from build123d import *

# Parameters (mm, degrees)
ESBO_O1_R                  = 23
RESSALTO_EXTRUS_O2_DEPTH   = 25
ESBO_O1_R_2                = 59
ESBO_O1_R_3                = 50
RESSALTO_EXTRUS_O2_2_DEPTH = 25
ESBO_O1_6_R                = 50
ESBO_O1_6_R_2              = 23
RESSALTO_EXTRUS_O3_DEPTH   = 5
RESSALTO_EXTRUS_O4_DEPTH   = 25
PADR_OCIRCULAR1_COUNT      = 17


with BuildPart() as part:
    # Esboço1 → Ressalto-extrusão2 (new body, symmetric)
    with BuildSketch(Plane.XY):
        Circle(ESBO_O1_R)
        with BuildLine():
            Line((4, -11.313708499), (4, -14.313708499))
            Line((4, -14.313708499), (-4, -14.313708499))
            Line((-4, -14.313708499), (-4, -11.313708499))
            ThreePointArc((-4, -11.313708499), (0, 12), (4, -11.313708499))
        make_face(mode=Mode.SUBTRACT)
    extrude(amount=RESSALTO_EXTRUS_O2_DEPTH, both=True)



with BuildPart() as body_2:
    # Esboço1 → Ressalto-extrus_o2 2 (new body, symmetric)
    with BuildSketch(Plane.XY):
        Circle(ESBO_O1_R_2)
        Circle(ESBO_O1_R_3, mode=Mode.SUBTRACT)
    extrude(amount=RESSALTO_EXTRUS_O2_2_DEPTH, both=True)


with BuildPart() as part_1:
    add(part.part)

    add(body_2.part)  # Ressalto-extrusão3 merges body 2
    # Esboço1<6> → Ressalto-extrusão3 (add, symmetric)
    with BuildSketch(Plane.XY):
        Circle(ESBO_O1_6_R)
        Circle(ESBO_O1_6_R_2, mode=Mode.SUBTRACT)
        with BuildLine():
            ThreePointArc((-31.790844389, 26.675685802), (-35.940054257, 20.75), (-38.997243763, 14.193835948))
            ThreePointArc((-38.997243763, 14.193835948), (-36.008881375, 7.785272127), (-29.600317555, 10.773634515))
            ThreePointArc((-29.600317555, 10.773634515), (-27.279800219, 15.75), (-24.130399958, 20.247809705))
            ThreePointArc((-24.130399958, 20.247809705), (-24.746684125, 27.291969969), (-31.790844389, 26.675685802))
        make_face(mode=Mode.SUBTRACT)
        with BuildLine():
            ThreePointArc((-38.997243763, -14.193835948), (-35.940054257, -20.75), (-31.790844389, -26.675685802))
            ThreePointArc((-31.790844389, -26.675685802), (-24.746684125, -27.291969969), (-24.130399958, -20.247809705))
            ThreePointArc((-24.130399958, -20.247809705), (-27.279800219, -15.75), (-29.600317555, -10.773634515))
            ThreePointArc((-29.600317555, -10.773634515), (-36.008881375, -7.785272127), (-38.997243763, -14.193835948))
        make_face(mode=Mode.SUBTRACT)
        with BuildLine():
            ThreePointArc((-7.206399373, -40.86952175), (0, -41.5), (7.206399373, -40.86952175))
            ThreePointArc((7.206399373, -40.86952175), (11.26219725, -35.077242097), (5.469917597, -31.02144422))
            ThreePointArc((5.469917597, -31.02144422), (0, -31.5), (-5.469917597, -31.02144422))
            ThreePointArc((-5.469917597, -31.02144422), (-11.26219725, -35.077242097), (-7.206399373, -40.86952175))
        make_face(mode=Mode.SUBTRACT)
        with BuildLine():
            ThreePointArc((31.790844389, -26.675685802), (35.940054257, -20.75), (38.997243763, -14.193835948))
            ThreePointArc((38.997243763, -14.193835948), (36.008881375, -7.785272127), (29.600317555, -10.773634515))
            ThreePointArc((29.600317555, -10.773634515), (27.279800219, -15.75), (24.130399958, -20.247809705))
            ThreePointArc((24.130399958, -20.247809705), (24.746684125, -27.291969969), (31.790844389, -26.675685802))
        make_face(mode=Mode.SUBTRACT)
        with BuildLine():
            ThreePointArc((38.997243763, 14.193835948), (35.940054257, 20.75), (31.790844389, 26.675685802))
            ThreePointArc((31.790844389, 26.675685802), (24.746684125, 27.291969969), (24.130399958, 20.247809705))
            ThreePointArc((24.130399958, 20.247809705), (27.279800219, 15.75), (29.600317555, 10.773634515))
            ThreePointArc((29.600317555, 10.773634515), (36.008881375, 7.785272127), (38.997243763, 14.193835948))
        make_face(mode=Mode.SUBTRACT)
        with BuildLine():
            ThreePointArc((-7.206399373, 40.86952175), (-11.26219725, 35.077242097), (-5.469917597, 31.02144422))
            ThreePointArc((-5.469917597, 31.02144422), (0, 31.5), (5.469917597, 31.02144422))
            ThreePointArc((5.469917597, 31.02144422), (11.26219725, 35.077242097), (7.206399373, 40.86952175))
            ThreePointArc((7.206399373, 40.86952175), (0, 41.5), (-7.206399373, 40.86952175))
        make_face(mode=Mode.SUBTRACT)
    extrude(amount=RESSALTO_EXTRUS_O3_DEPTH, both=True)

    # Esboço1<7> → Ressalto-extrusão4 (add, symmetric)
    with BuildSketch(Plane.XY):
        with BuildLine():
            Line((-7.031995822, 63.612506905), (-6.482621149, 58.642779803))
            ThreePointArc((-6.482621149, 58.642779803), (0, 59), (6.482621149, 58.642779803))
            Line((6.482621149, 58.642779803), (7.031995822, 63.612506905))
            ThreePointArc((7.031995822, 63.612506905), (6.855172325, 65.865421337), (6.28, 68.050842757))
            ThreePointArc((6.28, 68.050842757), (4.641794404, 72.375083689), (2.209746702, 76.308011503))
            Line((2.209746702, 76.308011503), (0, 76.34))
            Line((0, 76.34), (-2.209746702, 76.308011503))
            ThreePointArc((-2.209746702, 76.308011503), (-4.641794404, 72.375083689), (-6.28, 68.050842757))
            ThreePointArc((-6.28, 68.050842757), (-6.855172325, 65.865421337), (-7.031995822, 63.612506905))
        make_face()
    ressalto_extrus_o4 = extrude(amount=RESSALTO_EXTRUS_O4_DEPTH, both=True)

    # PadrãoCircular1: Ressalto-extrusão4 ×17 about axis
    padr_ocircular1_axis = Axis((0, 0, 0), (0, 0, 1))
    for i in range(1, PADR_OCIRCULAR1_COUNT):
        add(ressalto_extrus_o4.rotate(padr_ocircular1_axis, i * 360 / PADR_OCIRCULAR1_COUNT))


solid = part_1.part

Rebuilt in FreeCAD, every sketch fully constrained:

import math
import FreeCAD as App
import Part
import Sketcher
from FreeCAD import Vector

doc = App.newDocument("Part")
body = doc.addObject("PartDesign::Body", "Body")

# Sketch on XY plane
sketch1 = body.newObject("Sketcher::SketchObject", "Sketch")
sketch1.AttachmentSupport = (doc.getObject("XY_Plane"), [""])
sketch1.MapMode = "FlatFace"
sketch1.addGeometry(Part.Circle(Vector(0, 0, 0), Vector(0, 0, 1), 23), False)
sketch1.addGeometry(Part.ArcOfCircle(Part.Circle(Vector(0, 0, 0), Vector(0, 0, 1), 12), math.radians(-71), math.radians(251)), False)
sketch1.addGeometry(Part.LineSegment(Vector(4, -11.3, 0), Vector(4, -14.3, 0)), False)
sketch1.addGeometry(Part.LineSegment(Vector(4, -14.3, 0), Vector(-4, -14.3, 0)), False)
sketch1.addGeometry(Part.LineSegment(Vector(-4, -14.3, 0), Vector(-4, -11.3, 0)), False)
sketch1.addConstraint(Sketcher.Constraint("Coincident", 1, 1, 2, 1))
sketch1.addConstraint(Sketcher.Constraint("Coincident", 2, 2, 3, 1))
sketch1.addConstraint(Sketcher.Constraint("Coincident", 3, 2, 4, 1))
sketch1.addConstraint(Sketcher.Constraint("Coincident", 4, 2, 1, 2))
sketch1.addConstraint(Sketcher.Constraint("Vertical", 2))
sketch1.addConstraint(Sketcher.Constraint("Horizontal", 3))
sketch1.addConstraint(Sketcher.Constraint("Vertical", 4))
sketch1.addConstraint(Sketcher.Constraint("Coincident", 0, 3, -1, 1))
sketch1.addConstraint(Sketcher.Constraint("Coincident", 1, 3, -1, 1))
sketch1.addConstraint(Sketcher.Constraint("Horizontal", 1, 1, 4, 2))
sketch1.addConstraint(Sketcher.Constraint("Diameter", 0, 46.0))
sketch1.addConstraint(Sketcher.Constraint("Radius", 1, 12.0))
sketch1.addConstraint(Sketcher.Constraint("DistanceX", 3, 2, 3, 1, 8.0))
sketch1.addConstraint(Sketcher.Constraint("DistanceY", 2, 2, 2, 1, 3.0))
pad1 = body.newObject("PartDesign::Pad", "Pad")
pad1.Profile = sketch1
pad1.Length = 50
pad1.Midplane = True
body2 = doc.addObject("PartDesign::Body", "Body001")

# Sketch on XY plane
sketch2 = body2.newObject("Sketcher::SketchObject", "Sketch001")
sketch2.AttachmentSupport = (doc.getObject("XY_Plane001"), [""])
sketch2.MapMode = "FlatFace"
sketch2.addGeometry(Part.Circle(Vector(0, 0, 0), Vector(0, 0, 1), 59), False)
sketch2.addGeometry(Part.Circle(Vector(0, 0, 0), Vector(0, 0, 1), 50), False)
sketch2.addConstraint(Sketcher.Constraint("Coincident", 0, 3, -1, 1))
sketch2.addConstraint(Sketcher.Constraint("Coincident", 1, 3, -1, 1))
sketch2.addConstraint(Sketcher.Constraint("Diameter", 0, 118.0))
sketch2.addConstraint(Sketcher.Constraint("Diameter", 1, 100.0))
pad2 = body2.newObject("PartDesign::Pad", "Pad001")
pad2.Profile = sketch2
pad2.Length = 50
pad2.Midplane = True
body.AllowCompound = True
doc.recompute()

boolean = body.newObject("PartDesign::Boolean", "Boolean")
boolean.Type = "Fuse"
boolean.addObjects([body2])

# Sketch on XY plane
sketch3 = body.newObject("Sketcher::SketchObject", "Sketch002")
sketch3.AttachmentSupport = (doc.getObject("XY_Plane"), [""])
sketch3.MapMode = "FlatFace"
sketch3.addGeometry(Part.Circle(Vector(0, 0, 0), Vector(0, 0, 1), 50), False)
sketch3.addGeometry(Part.ArcOfCircle(Part.Circle(Vector(0, 0, 0), Vector(0, 0, 1), 42), math.radians(-160), math.radians(-140)), False)
sketch3.addGeometry(Part.ArcOfCircle(Part.Circle(Vector(-34, -12, 0), Vector(0, 0, 1), 5), math.radians(20), math.radians(200)), False)
sketch3.addGeometry(Part.ArcOfCircle(Part.Circle(Vector(0, 0, 0), Vector(0, 0, 1), 32), math.radians(-160), math.radians(-140)), False)
sketch3.addGeometry(Part.ArcOfCircle(Part.Circle(Vector(-28, -23, 0), Vector(0, 0, 1), 5), math.radians(-140), math.radians(40)), False)
sketch3.addGeometry(Part.ArcOfCircle(Part.Circle(Vector(0, 0, 0), Vector(0, 0, 1), 41), math.radians(-100), math.radians(-80)), False)
sketch3.addGeometry(Part.ArcOfCircle(Part.Circle(Vector(-6, -36, 0), Vector(0, 0, 1), 5), math.radians(80), math.radians(260)), False)
sketch3.addGeometry(Part.ArcOfCircle(Part.Circle(Vector(0, 0, 0), Vector(0, 0, 1), 32), math.radians(-100), math.radians(-80)), False)
sketch3.addGeometry(Part.ArcOfCircle(Part.Circle(Vector(6, -36, 0), Vector(0, 0, 1), 5), math.radians(-80), math.radians(100)), False)
sketch3.addGeometry(Part.Circle(Vector(0, 0, 0), Vector(0, 0, 1), 23), False)
sketch3.addGeometry(Part.ArcOfCircle(Part.Circle(Vector(0, 0, 0), Vector(0, 0, 1), 42), math.radians(-40), math.radians(-20)), False)
sketch3.addGeometry(Part.ArcOfCircle(Part.Circle(Vector(28, -23, 0), Vector(0, 0, 1), 5), math.radians(140), math.radians(320)), False)
sketch3.addGeometry(Part.ArcOfCircle(Part.Circle(Vector(0, 0, 0), Vector(0, 0, 1), 32), math.radians(-40), math.radians(-20)), False)
sketch3.addGeometry(Part.ArcOfCircle(Part.Circle(Vector(34, -12, 0), Vector(0, 0, 1), 5), math.radians(-20), math.radians(160)), False)
sketch3.addGeometry(Part.ArcOfCircle(Part.Circle(Vector(0, 0, 0), Vector(0, 0, 1), 42), math.radians(140), math.radians(160)), False)
sketch3.addGeometry(Part.ArcOfCircle(Part.Circle(Vector(-28, 23, 0), Vector(0, 0, 1), 5), math.radians(-40), math.radians(140)), False)
sketch3.addGeometry(Part.ArcOfCircle(Part.Circle(Vector(0, 0, 0), Vector(0, 0, 1), 32), math.radians(140), math.radians(160)), False)
sketch3.addGeometry(Part.ArcOfCircle(Part.Circle(Vector(-34, 12, 0), Vector(0, 0, 1), 5), math.radians(160), math.radians(340)), False)
sketch3.addGeometry(Part.ArcOfCircle(Part.Circle(Vector(0, 0, 0), Vector(0, 0, 1), 42), math.radians(20), math.radians(40)), False)
sketch3.addGeometry(Part.ArcOfCircle(Part.Circle(Vector(34, 12, 0), Vector(0, 0, 1), 5), math.radians(-160), math.radians(20)), False)
sketch3.addGeometry(Part.ArcOfCircle(Part.Circle(Vector(0, 0, 0), Vector(0, 0, 1), 32), math.radians(20), math.radians(40)), False)
sketch3.addGeometry(Part.ArcOfCircle(Part.Circle(Vector(28, 23, 0), Vector(0, 0, 1), 5), math.radians(40), math.radians(220)), False)
sketch3.addGeometry(Part.ArcOfCircle(Part.Circle(Vector(-6, 36, 0), Vector(0, 0, 1), 5), math.radians(100), math.radians(280)), False)
sketch3.addGeometry(Part.ArcOfCircle(Part.Circle(Vector(0, 0, 0), Vector(0, 0, 1), 41), math.radians(80), math.radians(100)), False)
sketch3.addGeometry(Part.ArcOfCircle(Part.Circle(Vector(6, 36, 0), Vector(0, 0, 1), 5), math.radians(-100), math.radians(80)), False)
sketch3.addGeometry(Part.ArcOfCircle(Part.Circle(Vector(0, 0, 0), Vector(0, 0, 1), 32), math.radians(80), math.radians(100)), False)
sketch3.addConstraint(Sketcher.Constraint("Tangent", 1, 1, 2, 2))
sketch3.addConstraint(Sketcher.Constraint("Tangent", 2, 1, 3, 1))
sketch3.addConstraint(Sketcher.Constraint("Tangent", 3, 2, 4, 2))
sketch3.addConstraint(Sketcher.Constraint("Tangent", 4, 1, 1, 2))
sketch3.addConstraint(Sketcher.Constraint("Tangent", 5, 1, 6, 2))
sketch3.addConstraint(Sketcher.Constraint("Tangent", 6, 1, 7, 1))
sketch3.addConstraint(Sketcher.Constraint("Tangent", 7, 2, 8, 2))
sketch3.addConstraint(Sketcher.Constraint("Tangent", 8, 1, 5, 2))
sketch3.addConstraint(Sketcher.Constraint("Tangent", 10, 1, 11, 2))
sketch3.addConstraint(Sketcher.Constraint("Tangent", 11, 1, 12, 1))
sketch3.addConstraint(Sketcher.Constraint("Tangent", 12, 2, 13, 2))
sketch3.addConstraint(Sketcher.Constraint("Tangent", 13, 1, 10, 2))
sketch3.addConstraint(Sketcher.Constraint("Tangent", 14, 1, 15, 2))
sketch3.addConstraint(Sketcher.Constraint("Tangent", 15, 1, 16, 1))
sketch3.addConstraint(Sketcher.Constraint("Tangent", 16, 2, 17, 2))
sketch3.addConstraint(Sketcher.Constraint("Tangent", 17, 1, 14, 2))
sketch3.addConstraint(Sketcher.Constraint("Tangent", 18, 1, 19, 2))
sketch3.addConstraint(Sketcher.Constraint("Tangent", 19, 1, 20, 1))
sketch3.addConstraint(Sketcher.Constraint("Tangent", 20, 2, 21, 2))
sketch3.addConstraint(Sketcher.Constraint("Tangent", 21, 1, 18, 2))
sketch3.addConstraint(Sketcher.Constraint("Tangent", 22, 1, 23, 2))
sketch3.addConstraint(Sketcher.Constraint("Tangent", 23, 1, 24, 2))
sketch3.addConstraint(Sketcher.Constraint("Tangent", 24, 1, 25, 1))
sketch3.addConstraint(Sketcher.Constraint("Tangent", 25, 2, 22, 2))
sketch3.addConstraint(Sketcher.Constraint("Coincident", 0, 3, -1, 1))
sketch3.addConstraint(Sketcher.Constraint("Coincident", 1, 3, -1, 1))
sketch3.addConstraint(Sketcher.Constraint("Coincident", 3, 3, -1, 1))
sketch3.addConstraint(Sketcher.Constraint("Coincident", 5, 3, -1, 1))
sketch3.addConstraint(Sketcher.Constraint("Coincident", 7, 3, -1, 1))
sketch3.addConstraint(Sketcher.Constraint("Coincident", 9, 3, -1, 1))
sketch3.addConstraint(Sketcher.Constraint("Coincident", 10, 3, -1, 1))
sketch3.addConstraint(Sketcher.Constraint("Coincident", 12, 3, -1, 1))
sketch3.addConstraint(Sketcher.Constraint("Coincident", 14, 3, -1, 1))
sketch3.addConstraint(Sketcher.Constraint("Coincident", 16, 3, -1, 1))
sketch3.addConstraint(Sketcher.Constraint("Coincident", 18, 3, -1, 1))
sketch3.addConstraint(Sketcher.Constraint("Coincident", 20, 3, -1, 1))
sketch3.addConstraint(Sketcher.Constraint("Coincident", 23, 3, -1, 1))
sketch3.addConstraint(Sketcher.Constraint("Coincident", 25, 3, -1, 1))
sketch3.addConstraint(Sketcher.Constraint("Equal", 1, 5))
sketch3.addConstraint(Sketcher.Constraint("Equal", 4, 6))
sketch3.addConstraint(Sketcher.Constraint("Equal", 5, 10))
sketch3.addConstraint(Sketcher.Constraint("Equal", 8, 11))
sketch3.addConstraint(Sketcher.Constraint("Equal", 10, 14))
sketch3.addConstraint(Sketcher.Constraint("Equal", 13, 15))
sketch3.addConstraint(Sketcher.Constraint("Equal", 14, 18))
sketch3.addConstraint(Sketcher.Constraint("Equal", 17, 19))
sketch3.addConstraint(Sketcher.Constraint("Equal", 21, 22))
sketch3.addConstraint(Sketcher.Constraint("Equal", 18, 23))
sketch3.addConstraint(Sketcher.Constraint("Horizontal", 6, 3, 8, 3))
sketch3.addConstraint(Sketcher.Constraint("Horizontal", 4, 3, 11, 3))
sketch3.addConstraint(Sketcher.Constraint("Horizontal", 2, 3, 13, 3))
sketch3.addConstraint(Sketcher.Constraint("Horizontal", 17, 3, 19, 3))
sketch3.addConstraint(Sketcher.Constraint("Horizontal", 15, 3, 21, 3))
sketch3.addConstraint(Sketcher.Constraint("Horizontal", 22, 3, 24, 3))
sketch3.addConstraint(Sketcher.Constraint("Vertical", 4, 3, 15, 3))
sketch3.addConstraint(Sketcher.Constraint("Vertical", 2, 3, 17, 3))
sketch3.addConstraint(Sketcher.Constraint("Vertical", 6, 3, 22, 3))
sketch3.addConstraint(Sketcher.Constraint("Diameter", 0, 100.0))
sketch3.addConstraint(Sketcher.Constraint("Diameter", 9, 46.0))
sketch3.addConstraint(Sketcher.Constraint("Radius", 2, 5.0))
sketch3.addConstraint(Sketcher.Constraint("Radius", 1, 41.5))
sketch3.addConstraint(Sketcher.Constraint("DistanceX", 3, 2, 5, 1, 16.924001))
sketch3.addConstraint(Sketcher.Constraint("DistanceX", 3, 2, -1, 1, 24.1304))
sketch3.addConstraint(Sketcher.Constraint("DistanceY", 2, 3, 2, 1, 1.710101))
pad3 = body.newObject("PartDesign::Pad", "Pad002")
pad3.Profile = sketch3
pad3.Length = 10
pad3.Midplane = True

# Sketch on XY plane
sketch4 = body.newObject("Sketcher::SketchObject", "Sketch003")
sketch4.AttachmentSupport = (doc.getObject("XY_Plane"), [""])
sketch4.MapMode = "FlatFace"
sketch4.addGeometry(Part.LineSegment(Vector(-7, 63.6, 0), Vector(-6.5, 58.6, 0)), False)
sketch4.addGeometry(Part.ArcOfCircle(Part.Circle(Vector(0, 0, 0), Vector(0, 0, 1), 59), math.radians(83.69), math.radians(96.31)), False)
sketch4.addGeometry(Part.LineSegment(Vector(6.5, 58.6, 0), Vector(7, 63.6, 0)), False)
sketch4.addGeometry(Part.ArcOfCircle(Part.Circle(Vector(-5.6, 63.8, 0), Vector(0, 0, 1), 12.6), math.radians(-1), math.radians(20)), False)
sketch4.addGeometry(Part.ArcOfCircle(Part.Circle(Vector(-17, 61.7, 0), Vector(0, 0, 1), 24.2), math.radians(15), math.radians(37)), False)
sketch4.addGeometry(Part.LineSegment(Vector(2.2, 76.3, 0), Vector(0, 76.3, 0)), False)
sketch4.addGeometry(Part.LineSegment(Vector(0, 76.3, 0), Vector(-2.2, 76.3, 0)), False)
sketch4.addGeometry(Part.ArcOfCircle(Part.Circle(Vector(17, 61.7, 0), Vector(0, 0, 1), 24.2), math.radians(143), math.radians(165)), False)
sketch4.addGeometry(Part.ArcOfCircle(Part.Circle(Vector(5.6, 63.8, 0), Vector(0, 0, 1), 12.6), math.radians(160), math.radians(181)), False)
sketch4.addConstraint(Sketcher.Constraint("Coincident", 0, 2, 1, 2))
sketch4.addConstraint(Sketcher.Constraint("Coincident", 1, 1, 2, 1))
sketch4.addConstraint(Sketcher.Constraint("Coincident", 2, 2, 3, 1))
sketch4.addConstraint(Sketcher.Constraint("Coincident", 3, 2, 4, 1))
sketch4.addConstraint(Sketcher.Constraint("Coincident", 4, 2, 5, 1))
sketch4.addConstraint(Sketcher.Constraint("Coincident", 5, 2, 6, 1))
sketch4.addConstraint(Sketcher.Constraint("Coincident", 6, 2, 7, 1))
sketch4.addConstraint(Sketcher.Constraint("Coincident", 7, 2, 8, 1))
sketch4.addConstraint(Sketcher.Constraint("Coincident", 8, 2, 0, 1))
sketch4.addConstraint(Sketcher.Constraint("Coincident", 1, 3, -1, 1))
sketch4.addConstraint(Sketcher.Constraint("Equal", 4, 7))
sketch4.addConstraint(Sketcher.Constraint("Equal", 3, 8))
sketch4.addConstraint(Sketcher.Constraint("Symmetric", 4, 3, 7, 3, -2))
sketch4.addConstraint(Sketcher.Constraint("Symmetric", 3, 3, 8, 3, -2))
sketch4.addConstraint(Sketcher.Constraint("PointOnObject", 5, 2, -2))
sketch4.addConstraint(Sketcher.Constraint("Horizontal", 0, 2, 1, 1))
sketch4.addConstraint(Sketcher.Constraint("Horizontal", 4, 2, 6, 2))
sketch4.addConstraint(Sketcher.Constraint("Horizontal", 2, 2, 8, 2))
sketch4.addConstraint(Sketcher.Constraint("Radius", 1, 59.0))
sketch4.addConstraint(Sketcher.Constraint("Radius", 3, 12.64))
sketch4.addConstraint(Sketcher.Constraint("Radius", 4, 24.16))
sketch4.addConstraint(Sketcher.Constraint("Distance", 0, 5.0))
sketch4.addConstraint(Sketcher.Constraint("DistanceX", -1, 1, 3, 2, 6.28))
sketch4.addConstraint(Sketcher.Constraint("DistanceY", -1, 1, 5, 2, 76.34))
sketch4.addConstraint(Sketcher.Constraint("DistanceY", 7, 3, 3, 2, 6.357798))
sketch4.addConstraint(Sketcher.Constraint("Distance", 5, 2.209978))
sketch4.addConstraint(Sketcher.Constraint("DistanceX", 0, 2, -1, 1, 6.482621))
sketch4.addConstraint(Sketcher.Constraint("DistanceY", -1, 1, 4, 2, 76.308012))
sketch4.addConstraint(Sketcher.Constraint("DistanceX", 4, 3, 3, 3, 11.42124))
pad4 = body.newObject("PartDesign::Pad", "Pad003")
pad4.Profile = sketch4
pad4.Length = 50
pad4.Midplane = True
doc.recompute()

polarpattern = body.newObject("PartDesign::PolarPattern", "PolarPattern")
polarpattern.Originals = [pad4]
polarpattern.Axis = (doc.getObject("Z_Axis"), [""])
polarpattern.Angle = 360
polarpattern.Occurrences = 17
body.Tip = polarpattern

doc.recompute()
